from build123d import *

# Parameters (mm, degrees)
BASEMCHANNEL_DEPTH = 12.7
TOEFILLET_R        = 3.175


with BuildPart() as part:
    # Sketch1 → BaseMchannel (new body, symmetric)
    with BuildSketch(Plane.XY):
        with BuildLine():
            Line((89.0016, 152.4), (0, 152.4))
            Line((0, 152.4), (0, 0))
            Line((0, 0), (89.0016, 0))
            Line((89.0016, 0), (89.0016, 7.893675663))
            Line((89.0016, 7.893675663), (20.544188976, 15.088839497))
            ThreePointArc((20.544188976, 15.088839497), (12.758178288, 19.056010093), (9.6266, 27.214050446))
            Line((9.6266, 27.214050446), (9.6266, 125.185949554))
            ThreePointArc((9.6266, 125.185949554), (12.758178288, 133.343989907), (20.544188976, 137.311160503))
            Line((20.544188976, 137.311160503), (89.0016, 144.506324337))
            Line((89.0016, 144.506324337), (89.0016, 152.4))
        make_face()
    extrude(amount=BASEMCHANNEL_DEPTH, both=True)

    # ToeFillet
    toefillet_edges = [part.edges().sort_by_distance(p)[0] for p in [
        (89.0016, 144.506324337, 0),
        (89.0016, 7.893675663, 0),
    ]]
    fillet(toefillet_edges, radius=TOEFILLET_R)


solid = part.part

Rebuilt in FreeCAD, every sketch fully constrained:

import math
import FreeCAD as App
import Part
import Sketcher
Q = App.Units.Quantity


def edges_at(feature, points):
    """Names of the edges that pass closest to the given points."""
    edges = feature.Shape.Edges
    near = lambda p: min(range(len(edges)), key=lambda i: edges[i].distToShape(Part.Vertex(*p))[0])
    return sorted({f"Edge{near(p) + 1}" for p in points})

doc = App.newDocument("Part")
body = doc.addObject("PartDesign::Body", "Body")

# Sketch on XY plane
sketch1 = doc.addObject("Sketcher::SketchObject", "Sketch")
body.addObject(sketch1)
sketch1.AttachmentSupport = (doc.XY_Plane, [""])
sketch1.MapMode = "FlatFace"
sketch1.addGeometry([
    Part.LineSegment(App.Vector(89, 152, 0), App.Vector(0, 152, 0)),  # 0
    Part.LineSegment(App.Vector(0, 152, 0), App.Vector(0, 0, 0)),  # 1
    Part.LineSegment(App.Vector(0, 0, 0), App.Vector(89, 0, 0)),  # 2
    Part.LineSegment(App.Vector(89, 0, 0), App.Vector(89, 8, 0)),  # 3
    Part.LineSegment(App.Vector(89, 8, 0), App.Vector(21, 15, 0)),  # 4
    Part.ArcOfCircle(Part.Circle(App.Vector(22, 27, 0), App.Vector(0, 0, 1), 12), math.radians(180), math.radians(264)),  # 5
    Part.LineSegment(App.Vector(10, 27, 0), App.Vector(10, 125, 0)),  # 6
    Part.ArcOfCircle(Part.Circle(App.Vector(22, 125, 0), App.Vector(0, 0, 1), 12), math.radians(96), math.radians(180)),  # 7
    Part.LineSegment(App.Vector(21, 137, 0), App.Vector(89, 145, 0)),  # 8
    Part.LineSegment(App.Vector(89, 145, 0), App.Vector(89, 152, 0)),  # 9
], False)
sketch1.addConstraint([
    Sketcher.Constraint("Coincident", 0, 2, 1, 1),
    Sketcher.Constraint("Coincident", 1, 2, 2, 1),
    Sketcher.Constraint("Coincident", 2, 2, 3, 1),
    Sketcher.Constraint("Coincident", 3, 2, 4, 1),
    Sketcher.Constraint("Tangent", 4, 2, 5, 2),
    Sketcher.Constraint("Tangent", 5, 1, 6, 1),
    Sketcher.Constraint("Tangent", 6, 2, 7, 2),
    Sketcher.Constraint("Tangent", 7, 1, 8, 1),
    Sketcher.Constraint("Coincident", 8, 2, 9, 1),
    Sketcher.Constraint("Coincident", 9, 2, 0, 1),
    Sketcher.Constraint("Horizontal", 0),
    Sketcher.Constraint("Vertical", 1),
    Sketcher.Constraint("Horizontal", 2),
    Sketcher.Constraint("Vertical", 3),
    Sketcher.Constraint("Vertical", 6),
    Sketcher.Constraint("Vertical", 9),
    Sketcher.Constraint("Coincident", 1, 2, -1, 1),
    Sketcher.Constraint("Equal", 5, 7),
    Sketcher.Constraint("Vertical", 4, 2, 7, 1),
    Sketcher.Constraint("Vertical", 3, 2, 8, 2),
    Sketcher.Constraint("Equal", 3, 9),
    Sketcher.Constraint("DistanceY", 1, 2, 1, 1, Q("6 in")),
    Sketcher.Constraint("Radius", 5, Q("0.48 in")),
    Sketcher.Constraint("Angle", 4, Q("174 deg")),
    Sketcher.Constraint("DistanceX", 0, 2, 0, 1, Q("3.504 in")),
    Sketcher.Constraint("DistanceX", -1, 1, 5, 3, Q("0.859 in")),
    Sketcher.Constraint("DistanceY", 6, 1, 6, 2, Q("97.971899 mm")),
])
pad1 = doc.addObject("PartDesign::Pad", "Pad")
body.addObject(pad1)
pad1.Profile = sketch1
pad1.Length = Q("1 in")
pad1.Midplane = True
doc.recompute()

fillet = doc.addObject("PartDesign::Fillet", "Fillet")
body.addObject(fillet)
fillet.Base = (pad1, edges_at(pad1, [(89.002, 144.506, 0), (89.002, 7.894, 0)]))
fillet.Radius = Q("0.125 in")

doc.recompute()
